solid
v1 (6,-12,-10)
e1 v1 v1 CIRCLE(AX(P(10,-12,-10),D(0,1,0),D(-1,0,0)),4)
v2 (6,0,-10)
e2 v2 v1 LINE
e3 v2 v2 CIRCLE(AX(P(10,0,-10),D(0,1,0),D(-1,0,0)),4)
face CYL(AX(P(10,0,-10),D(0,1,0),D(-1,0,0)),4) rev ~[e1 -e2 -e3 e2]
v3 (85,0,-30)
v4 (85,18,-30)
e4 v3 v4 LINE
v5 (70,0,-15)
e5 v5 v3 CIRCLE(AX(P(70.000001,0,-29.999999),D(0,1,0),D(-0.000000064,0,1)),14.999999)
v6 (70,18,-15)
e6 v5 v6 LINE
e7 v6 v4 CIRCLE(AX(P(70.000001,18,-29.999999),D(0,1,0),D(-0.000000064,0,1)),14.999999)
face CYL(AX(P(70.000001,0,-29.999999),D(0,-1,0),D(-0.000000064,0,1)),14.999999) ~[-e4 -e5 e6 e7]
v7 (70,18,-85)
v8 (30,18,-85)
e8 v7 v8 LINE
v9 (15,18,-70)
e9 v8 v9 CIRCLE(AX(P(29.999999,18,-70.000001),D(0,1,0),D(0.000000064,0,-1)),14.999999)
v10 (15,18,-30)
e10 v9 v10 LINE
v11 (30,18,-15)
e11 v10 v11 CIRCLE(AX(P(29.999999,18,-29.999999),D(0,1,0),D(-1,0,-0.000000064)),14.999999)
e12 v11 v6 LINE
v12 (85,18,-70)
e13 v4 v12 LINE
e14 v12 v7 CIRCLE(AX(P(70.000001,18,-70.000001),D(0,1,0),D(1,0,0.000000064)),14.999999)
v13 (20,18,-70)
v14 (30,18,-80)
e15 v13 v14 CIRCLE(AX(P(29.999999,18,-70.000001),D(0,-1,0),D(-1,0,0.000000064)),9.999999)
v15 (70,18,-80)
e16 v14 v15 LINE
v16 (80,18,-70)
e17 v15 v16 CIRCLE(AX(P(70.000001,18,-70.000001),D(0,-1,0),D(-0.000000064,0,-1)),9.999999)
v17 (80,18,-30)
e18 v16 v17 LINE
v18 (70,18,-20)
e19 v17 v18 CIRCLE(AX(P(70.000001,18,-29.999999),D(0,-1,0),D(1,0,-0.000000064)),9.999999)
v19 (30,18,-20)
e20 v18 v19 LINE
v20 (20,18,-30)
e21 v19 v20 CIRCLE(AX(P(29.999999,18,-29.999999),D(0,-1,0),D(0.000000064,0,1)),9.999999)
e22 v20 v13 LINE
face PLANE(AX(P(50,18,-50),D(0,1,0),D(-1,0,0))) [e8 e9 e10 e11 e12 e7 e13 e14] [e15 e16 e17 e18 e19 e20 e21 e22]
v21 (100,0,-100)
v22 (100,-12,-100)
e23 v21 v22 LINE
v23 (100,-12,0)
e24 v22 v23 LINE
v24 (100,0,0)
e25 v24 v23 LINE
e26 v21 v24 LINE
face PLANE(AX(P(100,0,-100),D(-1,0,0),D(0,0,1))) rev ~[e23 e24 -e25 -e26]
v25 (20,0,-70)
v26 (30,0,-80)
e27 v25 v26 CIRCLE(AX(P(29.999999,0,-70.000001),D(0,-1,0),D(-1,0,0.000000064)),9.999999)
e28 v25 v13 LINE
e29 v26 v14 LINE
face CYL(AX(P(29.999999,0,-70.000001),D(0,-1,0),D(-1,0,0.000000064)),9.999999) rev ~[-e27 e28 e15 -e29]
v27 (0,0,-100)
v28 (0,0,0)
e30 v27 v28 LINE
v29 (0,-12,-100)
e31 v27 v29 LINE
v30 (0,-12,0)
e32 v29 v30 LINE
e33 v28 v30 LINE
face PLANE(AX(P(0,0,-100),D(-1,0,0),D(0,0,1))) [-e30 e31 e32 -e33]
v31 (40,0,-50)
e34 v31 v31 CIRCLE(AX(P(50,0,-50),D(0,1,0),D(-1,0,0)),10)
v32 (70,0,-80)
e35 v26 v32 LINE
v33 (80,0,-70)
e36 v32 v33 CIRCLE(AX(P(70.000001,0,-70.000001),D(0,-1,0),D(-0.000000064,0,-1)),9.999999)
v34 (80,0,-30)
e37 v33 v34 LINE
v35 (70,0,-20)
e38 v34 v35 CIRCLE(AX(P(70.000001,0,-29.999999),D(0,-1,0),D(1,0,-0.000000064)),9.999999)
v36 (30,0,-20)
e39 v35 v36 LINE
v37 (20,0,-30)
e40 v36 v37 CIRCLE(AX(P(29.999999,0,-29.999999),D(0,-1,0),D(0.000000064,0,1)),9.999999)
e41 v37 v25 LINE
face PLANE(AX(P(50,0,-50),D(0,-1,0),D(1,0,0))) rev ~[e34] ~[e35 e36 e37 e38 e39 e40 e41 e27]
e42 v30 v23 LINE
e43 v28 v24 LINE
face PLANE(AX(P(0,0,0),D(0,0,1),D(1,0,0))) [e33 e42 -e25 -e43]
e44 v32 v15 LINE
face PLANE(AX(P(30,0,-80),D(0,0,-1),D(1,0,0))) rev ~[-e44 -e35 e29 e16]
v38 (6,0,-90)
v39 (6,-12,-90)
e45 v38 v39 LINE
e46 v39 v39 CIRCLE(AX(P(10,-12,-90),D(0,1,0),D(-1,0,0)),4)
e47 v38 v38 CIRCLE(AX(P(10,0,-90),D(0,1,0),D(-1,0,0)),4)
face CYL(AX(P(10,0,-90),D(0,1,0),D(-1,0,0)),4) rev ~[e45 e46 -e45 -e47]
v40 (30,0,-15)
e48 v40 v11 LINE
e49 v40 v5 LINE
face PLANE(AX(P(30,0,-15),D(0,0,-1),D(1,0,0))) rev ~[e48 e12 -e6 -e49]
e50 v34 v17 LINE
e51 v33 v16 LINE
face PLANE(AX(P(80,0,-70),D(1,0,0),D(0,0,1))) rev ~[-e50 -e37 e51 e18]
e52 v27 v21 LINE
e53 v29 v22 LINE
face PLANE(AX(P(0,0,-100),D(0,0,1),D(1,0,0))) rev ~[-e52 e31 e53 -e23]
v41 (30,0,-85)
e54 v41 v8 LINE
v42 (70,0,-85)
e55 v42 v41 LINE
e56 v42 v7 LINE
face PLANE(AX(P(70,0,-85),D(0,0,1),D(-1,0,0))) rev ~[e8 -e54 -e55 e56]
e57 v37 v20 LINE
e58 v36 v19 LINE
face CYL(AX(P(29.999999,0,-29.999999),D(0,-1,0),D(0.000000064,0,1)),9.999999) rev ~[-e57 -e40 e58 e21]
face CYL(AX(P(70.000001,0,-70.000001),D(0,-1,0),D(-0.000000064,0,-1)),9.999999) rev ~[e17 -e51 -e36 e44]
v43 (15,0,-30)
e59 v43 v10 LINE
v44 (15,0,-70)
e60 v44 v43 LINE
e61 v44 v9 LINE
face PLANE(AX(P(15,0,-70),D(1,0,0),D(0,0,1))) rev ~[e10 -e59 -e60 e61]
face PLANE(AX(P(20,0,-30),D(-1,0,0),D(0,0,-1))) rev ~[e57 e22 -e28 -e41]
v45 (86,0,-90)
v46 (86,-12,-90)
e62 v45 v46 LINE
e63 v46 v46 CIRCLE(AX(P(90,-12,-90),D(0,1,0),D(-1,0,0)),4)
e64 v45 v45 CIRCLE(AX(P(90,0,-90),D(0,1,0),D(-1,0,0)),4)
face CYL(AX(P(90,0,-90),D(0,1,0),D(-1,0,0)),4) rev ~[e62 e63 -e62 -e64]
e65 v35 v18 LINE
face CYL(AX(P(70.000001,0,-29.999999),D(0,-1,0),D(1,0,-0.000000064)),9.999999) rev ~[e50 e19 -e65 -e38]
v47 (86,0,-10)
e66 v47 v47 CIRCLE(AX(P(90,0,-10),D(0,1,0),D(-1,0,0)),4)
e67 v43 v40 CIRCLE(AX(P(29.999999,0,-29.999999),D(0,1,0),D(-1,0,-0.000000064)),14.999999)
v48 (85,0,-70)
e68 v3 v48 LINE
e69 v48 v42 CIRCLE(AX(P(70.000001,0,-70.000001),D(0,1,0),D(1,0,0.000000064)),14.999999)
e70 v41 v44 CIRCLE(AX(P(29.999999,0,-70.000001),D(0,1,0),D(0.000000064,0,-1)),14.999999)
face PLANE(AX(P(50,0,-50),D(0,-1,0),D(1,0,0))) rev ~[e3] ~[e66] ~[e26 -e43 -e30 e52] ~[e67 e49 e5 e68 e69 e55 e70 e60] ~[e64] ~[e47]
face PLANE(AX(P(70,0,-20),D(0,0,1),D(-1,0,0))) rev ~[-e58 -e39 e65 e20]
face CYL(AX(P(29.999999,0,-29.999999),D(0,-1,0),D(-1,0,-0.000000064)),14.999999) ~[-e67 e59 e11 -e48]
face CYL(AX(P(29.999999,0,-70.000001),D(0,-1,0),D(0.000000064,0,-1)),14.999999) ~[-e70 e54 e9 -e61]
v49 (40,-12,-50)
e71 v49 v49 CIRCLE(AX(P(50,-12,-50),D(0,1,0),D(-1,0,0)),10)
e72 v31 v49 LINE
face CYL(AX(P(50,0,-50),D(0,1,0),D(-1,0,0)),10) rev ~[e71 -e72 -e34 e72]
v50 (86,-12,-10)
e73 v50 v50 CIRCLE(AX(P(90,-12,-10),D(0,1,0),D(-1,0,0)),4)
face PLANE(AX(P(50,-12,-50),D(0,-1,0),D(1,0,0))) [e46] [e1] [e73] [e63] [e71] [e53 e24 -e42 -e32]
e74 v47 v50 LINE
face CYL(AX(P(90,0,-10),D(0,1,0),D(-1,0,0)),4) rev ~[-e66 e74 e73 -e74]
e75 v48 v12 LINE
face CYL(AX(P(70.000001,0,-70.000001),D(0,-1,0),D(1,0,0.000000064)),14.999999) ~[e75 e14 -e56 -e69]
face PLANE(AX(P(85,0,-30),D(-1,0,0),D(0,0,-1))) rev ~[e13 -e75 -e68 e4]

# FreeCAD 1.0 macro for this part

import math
import FreeCAD as App
import Part
import Sketcher

V = App.Vector


def add_polygon(sketch, points):
    """Adds a closed chain of lines whose ends are joined by coincident constraints."""
    first, n = sketch.GeometryCount, len(points)
    for a, b in zip(points, points[1:] + points[:1]):
        sketch.addGeometry(Part.LineSegment(App.Vector(*a, 0), App.Vector(*b, 0)), False)
    for i in range(n):
        sketch.addConstraint(Sketcher.Constraint("Coincident", first + i, 2, first + (i + 1) % n, 1))

doc = App.newDocument("Part")
params = doc.addObject("Spreadsheet::Sheet", "Params")
for row, (alias, value) in enumerate([
    ("sketch1_width", "100 mm"),
    ("pad1_length", "12 mm"),
    ("sketch2_diameter", "8 mm"),
    ("pocket1_length", "12 mm"),
    ("sketch3_radius", "14.999999 mm"),
    ("sketch3_radius2", "9.999999 mm"),
    ("sketch3_width", "40 mm"),
    ("pad2_length", "18 mm"),
    ("sketch4_diameter", "20 mm"),
    ("pocket2_length", "18 mm"),
], start=1):
    params.set(f"A{row}", alias)
    params.set(f"B{row}", "=" + value)
    params.setAlias(f"B{row}", alias)

body = doc.addObject("PartDesign::Body", "Body")

sketch1 = body.newObject("Sketcher::SketchObject", "Sketch")
sketch1.AttachmentSupport = (doc.getObject("XZ_Plane"), [""])
sketch1.MapMode = "FlatFace"
add_polygon(sketch1, [(0, 0), (0, -100), (100, -100), (100, 0)])
sketch1.addConstraint(Sketcher.Constraint("Vertical", 0))
sketch1.addConstraint(Sketcher.Constraint("Horizontal", 1))
sketch1.addConstraint(Sketcher.Constraint("Vertical", 2))
sketch1.addConstraint(Sketcher.Constraint("Horizontal", 3))
sketch1.addConstraint(Sketcher.Constraint("Coincident", 3, 2, -1, 1))
sketch1.addConstraint(Sketcher.Constraint("Equal", 3, 0))
sketch1.addConstraint(Sketcher.Constraint("DistanceX", 1, 1, 1, 2, 100.0))
sketch1.setExpression("Constraints[10]", "Params.sketch1_width")
pad1 = body.newObject("PartDesign::Pad", "Pad")
pad1.Profile = sketch1
pad1.setExpression("Length", "Params.pad1_length")

sketch2 = body.newObject("Sketcher::SketchObject", "Sketch001")
sketch2.AttachmentSupport = (doc.getObject("XZ_Plane"), [""])
sketch2.MapMode = "FlatFace"
sketch2.addGeometry(Part.Circle(V(90, -90, 0), V(0, 0, 1), 4), False)
sketch2.addGeometry(Part.Circle(V(10, -90, 0), V(0, 0, 1), 4), False)
sketch2.addGeometry(Part.Circle(V(10, -10, 0), V(0, 0, 1), 4), False)
sketch2.addGeometry(Part.Circle(V(90, -10, 0), V(0, 0, 1), 4), False)
sketch2.addConstraint(Sketcher.Constraint("Equal", 0, 1))
sketch2.addConstraint(Sketcher.Constraint("Equal", 1, 2))
sketch2.addConstraint(Sketcher.Constraint("Equal", 2, 3))
sketch2.addConstraint(Sketcher.Constraint("Horizontal", 0, 3, 1, 3))
sketch2.addConstraint(Sketcher.Constraint("Horizontal", 2, 3, 3, 3))
sketch2.addConstraint(Sketcher.Constraint("Vertical", 1, 3, 2, 3))
sketch2.addConstraint(Sketcher.Constraint("Vertical", 0, 3, 3, 3))
sketch2.addConstraint(Sketcher.Constraint("Diameter", 0, 8.0))
sketch2.addConstraint(Sketcher.Constraint("DistanceX", -1, 1, 0, 3, 90.0))
sketch2.addConstraint(Sketcher.Constraint("DistanceY", 0, 3, -1, 1, 90.0))
sketch2.addConstraint(Sketcher.Constraint("DistanceX", -1, 1, 1, 3, 10.0))
sketch2.addConstraint(Sketcher.Constraint("DistanceY", 2, 3, -1, 1, 10.0))
sketch2.setExpression("Constraints[7]", "Params.sketch2_diameter")
pocket1 = body.newObject("PartDesign::Pocket", "Pocket")
pocket1.Profile = sketch2
pocket1.setExpression("Length", "Params.pocket1_length")
pocket1.Reversed = True

sketch3 = body.newObject("Sketcher::SketchObject", "Sketch002")
sketch3.AttachmentSupport = (doc.getObject("XZ_Plane"), [""])
sketch3.MapMode = "FlatFace"
sketch3.addGeometry(Part.ArcOfCircle(Part.Circle(V(70.000001, -70.000001, 0), V(0, 0, 1), 14.999999), math.radians(-90.000004), math.radians(0.000004)), False)
sketch3.addGeometry(Part.LineSegment(V(70, -85, 0), V(30, -85, 0)), False)
sketch3.addGeometry(Part.ArcOfCircle(Part.Circle(V(29.999999, -70.000001, 0), V(0, 0, 1), 14.999999), math.radians(179.999996), math.radians(270.000004)), False)
sketch3.addGeometry(Part.LineSegment(V(15, -70, 0), V(15, -30, 0)), False)
sketch3.addGeometry(Part.ArcOfCircle(Part.Circle(V(29.999999, -29.999999, 0), V(0, 0, 1), 14.999999), math.radians(89.999996), math.radians(180.000004)), False)
sketch3.addGeometry(Part.LineSegment(V(30, -15, 0), V(70, -15, 0)), False)
sketch3.addGeometry(Part.ArcOfCircle(Part.Circle(V(70.000001, -29.999999, 0), V(0, 0, 1), 14.999999), math.radians(-0.000004), math.radians(90.000004)), False)
sketch3.addGeometry(Part.LineSegment(V(85, -30, 0), V(85, -70, 0)), False)
sketch3.addGeometry(Part.ArcOfCircle(Part.Circle(V(29.999999, -70.000001, 0), V(0, 0, 1), 9.999999), math.radians(179.999996), math.radians(270.000004)), False)
sketch3.addGeometry(Part.LineSegment(V(30, -80, 0), V(70, -80, 0)), False)
sketch3.addGeometry(Part.ArcOfCircle(Part.Circle(V(70.000001, -70.000001, 0), V(0, 0, 1), 9.999999), math.radians(-90.000004), math.radians(0.000004)), False)
sketch3.addGeometry(Part.LineSegment(V(80, -70, 0), V(80, -30, 0)), False)
sketch3.addGeometry(Part.ArcOfCircle(Part.Circle(V(70.000001, -29.999999, 0), V(0, 0, 1), 9.999999), math.radians(-0.000004), math.radians(90.000004)), False)
sketch3.addGeometry(Part.LineSegment(V(70, -20, 0), V(30, -20, 0)), False)
sketch3.addGeometry(Part.ArcOfCircle(Part.Circle(V(29.999999, -29.999999, 0), V(0, 0, 1), 9.999999), math.radians(89.999996), math.radians(180.000004)), False)
sketch3.addGeometry(Part.LineSegment(V(20, -30, 0), V(20, -70, 0)), False)
sketch3.addConstraint(Sketcher.Constraint("Tangent", 0, 1, 1, 1))
sketch3.addConstraint(Sketcher.Constraint("Tangent", 1, 2, 2, 2))
sketch3.addConstraint(Sketcher.Constraint("Tangent", 2, 1, 3, 1))
sketch3.addConstraint(Sketcher.Constraint("Tangent", 3, 2, 4, 2))
sketch3.addConstraint(Sketcher.Constraint("Tangent", 4, 1, 5, 1))
sketch3.addConstraint(Sketcher.Constraint("Tangent", 5, 2, 6, 2))
sketch3.addConstraint(Sketcher.Constraint("Tangent", 6, 1, 7, 1))
sketch3.addConstraint(Sketcher.Constraint("Tangent", 7, 2, 0, 2))
sketch3.addConstraint(Sketcher.Constraint("Tangent", 8, 2, 9, 1))
sketch3.addConstraint(Sketcher.Constraint("Tangent", 9, 2, 10, 1))
sketch3.addConstraint(Sketcher.Constraint("Tangent", 10, 2, 11, 1))
sketch3.addConstraint(Sketcher.Constraint("Tangent", 11, 2, 12, 1))
sketch3.addConstraint(Sketcher.Constraint("Tangent", 12, 2, 13, 1))
sketch3.addConstraint(Sketcher.Constraint("Tangent", 13, 2, 14, 1))
sketch3.addConstraint(Sketcher.Constraint("Tangent", 14, 2, 15, 1))
sketch3.addConstraint(Sketcher.Constraint("Tangent", 15, 2, 8, 1))
sketch3.addConstraint(Sketcher.Constraint("Horizontal", 1))
sketch3.addConstraint(Sketcher.Constraint("Vertical", 3))
sketch3.addConstraint(Sketcher.Constraint("Horizontal", 5))
sketch3.addConstraint(Sketcher.Constraint("Vertical", 7))
sketch3.addConstraint(Sketcher.Constraint("Horizontal", 9))
sketch3.addConstraint(Sketcher.Constraint("Vertical", 11))
sketch3.addConstraint(Sketcher.Constraint("Horizontal", 13))
sketch3.addConstraint(Sketcher.Constraint("Vertical", 15))
sketch3.addConstraint(Sketcher.Constraint("Coincident", 8, 3, 2, 3))
sketch3.addConstraint(Sketcher.Constraint("Coincident", 10, 3, 0, 3))
sketch3.addConstraint(Sketcher.Constraint("Coincident", 12, 3, 6, 3))
sketch3.addConstraint(Sketcher.Constraint("Equal", 0, 2))
sketch3.addConstraint(Sketcher.Constraint("Equal", 2, 4))
sketch3.addConstraint(Sketcher.Constraint("Equal", 4, 6))
sketch3.addConstraint(Sketcher.Constraint("Equal", 12, 14))
sketch3.addConstraint(Sketcher.Constraint("Equal", 13, 3))
sketch3.addConstraint(Sketcher.Constraint("Radius", 0, 14.999999))
sketch3.addConstraint(Sketcher.Constraint("Radius", 8, 9.999999))
sketch3.addConstraint(Sketcher.Constraint("DistanceX", 1, 2, 1, 1, 40.0))
sketch3.addConstraint(Sketcher.Constraint("DistanceX", -1, 1, 0, 3, 70.000001))
sketch3.addConstraint(Sketcher.Constraint("DistanceY", 0, 3, -1, 1, 70.000001))
sketch3.setExpression("Constraints[32]", "Params.sketch3_radius")
sketch3.setExpression("Constraints[33]", "Params.sketch3_radius2")
sketch3.setExpression("Constraints[34]", "Params.sketch3_width")
pad2 = body.newObject("PartDesign::Pad", "Pad001")
pad2.Profile = sketch3
pad2.setExpression("Length", "Params.pad2_length")
pad2.Reversed = True

sketch4 = body.newObject("Sketcher::SketchObject", "Sketch003")
sketch4.AttachmentSupport = (doc.getObject("XZ_Plane"), [""])
sketch4.MapMode = "FlatFace"
sketch4.addGeometry(Part.Circle(V(50, -50, 0), V(0, 0, 1), 10), False)
sketch4.addConstraint(Sketcher.Constraint("Diameter", 0, 20.0))
sketch4.addConstraint(Sketcher.Constraint("DistanceX", -1, 1, 0, 3, 50.0))
sketch4.addConstraint(Sketcher.Constraint("DistanceY", 0, 3, -1, 1, 50.0))
sketch4.setExpression("Constraints[0]", "Params.sketch4_diameter")
pocket2 = body.newObject("PartDesign::Pocket", "Pocket001")
pocket2.Profile = sketch4
pocket2.setExpression("Length", "Params.pocket2_length")
pocket2.Reversed = True

doc.recompute()
